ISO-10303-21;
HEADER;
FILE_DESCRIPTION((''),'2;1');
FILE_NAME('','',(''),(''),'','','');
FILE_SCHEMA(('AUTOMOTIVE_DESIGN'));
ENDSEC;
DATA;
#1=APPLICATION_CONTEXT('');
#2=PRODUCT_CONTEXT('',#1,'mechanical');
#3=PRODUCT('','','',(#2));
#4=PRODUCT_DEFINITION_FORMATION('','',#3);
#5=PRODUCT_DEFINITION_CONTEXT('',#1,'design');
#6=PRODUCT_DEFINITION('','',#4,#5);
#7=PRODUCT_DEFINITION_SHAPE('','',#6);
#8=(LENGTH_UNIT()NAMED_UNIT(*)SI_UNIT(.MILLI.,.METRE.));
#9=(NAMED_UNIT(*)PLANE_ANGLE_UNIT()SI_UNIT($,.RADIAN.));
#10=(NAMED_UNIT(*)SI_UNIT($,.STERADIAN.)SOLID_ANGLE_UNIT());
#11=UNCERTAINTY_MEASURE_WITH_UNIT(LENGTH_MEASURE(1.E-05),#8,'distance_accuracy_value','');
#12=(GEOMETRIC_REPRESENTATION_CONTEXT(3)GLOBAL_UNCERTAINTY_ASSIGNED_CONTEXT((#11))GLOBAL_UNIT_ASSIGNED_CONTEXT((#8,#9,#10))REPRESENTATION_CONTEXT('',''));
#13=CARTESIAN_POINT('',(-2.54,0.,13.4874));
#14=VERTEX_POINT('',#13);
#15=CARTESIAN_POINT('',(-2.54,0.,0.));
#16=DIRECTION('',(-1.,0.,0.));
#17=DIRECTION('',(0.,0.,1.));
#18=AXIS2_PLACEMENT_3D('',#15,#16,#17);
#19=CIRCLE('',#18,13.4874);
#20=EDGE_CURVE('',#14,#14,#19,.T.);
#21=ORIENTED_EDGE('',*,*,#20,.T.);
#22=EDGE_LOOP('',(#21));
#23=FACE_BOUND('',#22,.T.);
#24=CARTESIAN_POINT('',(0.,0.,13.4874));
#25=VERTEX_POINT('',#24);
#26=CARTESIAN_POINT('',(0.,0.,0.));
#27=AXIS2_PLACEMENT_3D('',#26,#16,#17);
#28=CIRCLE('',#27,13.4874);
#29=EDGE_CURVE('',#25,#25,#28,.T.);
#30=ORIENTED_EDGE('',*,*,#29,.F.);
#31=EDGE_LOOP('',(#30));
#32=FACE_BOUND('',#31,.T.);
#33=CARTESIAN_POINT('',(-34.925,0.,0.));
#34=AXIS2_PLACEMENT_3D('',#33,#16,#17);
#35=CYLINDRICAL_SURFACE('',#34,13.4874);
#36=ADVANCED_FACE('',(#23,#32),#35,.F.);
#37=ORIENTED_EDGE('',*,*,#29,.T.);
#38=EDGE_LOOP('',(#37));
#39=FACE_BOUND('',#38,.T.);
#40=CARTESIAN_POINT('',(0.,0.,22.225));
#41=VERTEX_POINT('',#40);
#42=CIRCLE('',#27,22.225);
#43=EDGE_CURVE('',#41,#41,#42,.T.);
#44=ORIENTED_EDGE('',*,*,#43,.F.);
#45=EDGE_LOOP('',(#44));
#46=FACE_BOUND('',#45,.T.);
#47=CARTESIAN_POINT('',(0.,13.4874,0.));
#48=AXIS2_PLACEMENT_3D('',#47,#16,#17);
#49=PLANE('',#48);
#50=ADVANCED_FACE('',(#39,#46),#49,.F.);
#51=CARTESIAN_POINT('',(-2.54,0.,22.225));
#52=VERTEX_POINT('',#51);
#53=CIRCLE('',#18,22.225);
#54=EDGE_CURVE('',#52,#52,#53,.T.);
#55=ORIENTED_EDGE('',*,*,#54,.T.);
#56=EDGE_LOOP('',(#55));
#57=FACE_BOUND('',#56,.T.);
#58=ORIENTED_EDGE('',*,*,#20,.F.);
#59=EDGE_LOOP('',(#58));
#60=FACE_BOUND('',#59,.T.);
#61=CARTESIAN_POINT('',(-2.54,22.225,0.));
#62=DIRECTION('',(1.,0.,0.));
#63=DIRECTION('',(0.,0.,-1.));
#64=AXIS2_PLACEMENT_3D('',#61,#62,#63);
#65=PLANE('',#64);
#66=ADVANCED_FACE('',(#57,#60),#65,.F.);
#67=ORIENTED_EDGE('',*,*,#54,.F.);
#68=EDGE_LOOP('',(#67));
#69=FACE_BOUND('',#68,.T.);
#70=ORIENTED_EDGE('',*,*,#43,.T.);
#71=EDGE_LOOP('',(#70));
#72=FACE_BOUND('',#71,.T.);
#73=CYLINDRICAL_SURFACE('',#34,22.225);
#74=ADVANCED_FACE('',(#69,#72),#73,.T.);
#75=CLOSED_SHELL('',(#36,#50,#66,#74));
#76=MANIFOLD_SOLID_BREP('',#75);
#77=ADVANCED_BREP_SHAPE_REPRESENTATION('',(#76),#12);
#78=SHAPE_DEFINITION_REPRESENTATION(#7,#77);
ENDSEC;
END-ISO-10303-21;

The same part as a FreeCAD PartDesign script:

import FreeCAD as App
import Part
import Sketcher

V = App.Vector
Q = App.Units.Quantity


def add_polygon(sketch, points):
    """Adds a closed chain of lines whose ends are joined by coincident constraints."""
    first, n = sketch.GeometryCount, len(points)
    for a, b in zip(points, points[1:] + points[:1]):
        sketch.addGeometry(Part.LineSegment(App.Vector(*a, 0), App.Vector(*b, 0)), False)
    for i in range(n):
        sketch.addConstraint(Sketcher.Constraint("Coincident", first + i, 2, first + (i + 1) % n, 1))

doc = App.newDocument("Part")
body = doc.addObject("PartDesign::Body", "Body")

# Sketch on XY plane
sketch1 = body.newObject("Sketcher::SketchObject", "Sketch")
sketch1.AttachmentSupport = (doc.getObject("XY_Plane"), [""])
sketch1.MapMode = "FlatFace"
add_polygon(sketch1, [(-2.5, 22.2), (-2.5, 13.5), (0, 13.5), (0, 22.2)])  # lines 0-3
sketch1.addConstraint(Sketcher.Constraint("Vertical", 0))
sketch1.addConstraint(Sketcher.Constraint("Horizontal", 1))
sketch1.addConstraint(Sketcher.Constraint("Vertical", 2))
sketch1.addConstraint(Sketcher.Constraint("Horizontal", 3))
sketch1.addConstraint(Sketcher.Constraint("PointOnObject", 1, 2, -2))
sketch1.addConstraint(Sketcher.Constraint("DistanceX", 1, 1, 1, 2, Q("0.1 in")))
sketch1.addConstraint(Sketcher.Constraint("DistanceY", 0, 2, 0, 1, Q("0.344 in")))
sketch1.addConstraint(Sketcher.Constraint("DistanceY", -1, 1, 0, 2, Q("0.531 in")))
revolution = body.newObject("PartDesign::Revolution", "Revolution")
revolution.Profile = sketch1
revolution.ReferenceAxis = (sketch1, ["H_Axis"])
revolution.Angle = 360

doc.recompute()
